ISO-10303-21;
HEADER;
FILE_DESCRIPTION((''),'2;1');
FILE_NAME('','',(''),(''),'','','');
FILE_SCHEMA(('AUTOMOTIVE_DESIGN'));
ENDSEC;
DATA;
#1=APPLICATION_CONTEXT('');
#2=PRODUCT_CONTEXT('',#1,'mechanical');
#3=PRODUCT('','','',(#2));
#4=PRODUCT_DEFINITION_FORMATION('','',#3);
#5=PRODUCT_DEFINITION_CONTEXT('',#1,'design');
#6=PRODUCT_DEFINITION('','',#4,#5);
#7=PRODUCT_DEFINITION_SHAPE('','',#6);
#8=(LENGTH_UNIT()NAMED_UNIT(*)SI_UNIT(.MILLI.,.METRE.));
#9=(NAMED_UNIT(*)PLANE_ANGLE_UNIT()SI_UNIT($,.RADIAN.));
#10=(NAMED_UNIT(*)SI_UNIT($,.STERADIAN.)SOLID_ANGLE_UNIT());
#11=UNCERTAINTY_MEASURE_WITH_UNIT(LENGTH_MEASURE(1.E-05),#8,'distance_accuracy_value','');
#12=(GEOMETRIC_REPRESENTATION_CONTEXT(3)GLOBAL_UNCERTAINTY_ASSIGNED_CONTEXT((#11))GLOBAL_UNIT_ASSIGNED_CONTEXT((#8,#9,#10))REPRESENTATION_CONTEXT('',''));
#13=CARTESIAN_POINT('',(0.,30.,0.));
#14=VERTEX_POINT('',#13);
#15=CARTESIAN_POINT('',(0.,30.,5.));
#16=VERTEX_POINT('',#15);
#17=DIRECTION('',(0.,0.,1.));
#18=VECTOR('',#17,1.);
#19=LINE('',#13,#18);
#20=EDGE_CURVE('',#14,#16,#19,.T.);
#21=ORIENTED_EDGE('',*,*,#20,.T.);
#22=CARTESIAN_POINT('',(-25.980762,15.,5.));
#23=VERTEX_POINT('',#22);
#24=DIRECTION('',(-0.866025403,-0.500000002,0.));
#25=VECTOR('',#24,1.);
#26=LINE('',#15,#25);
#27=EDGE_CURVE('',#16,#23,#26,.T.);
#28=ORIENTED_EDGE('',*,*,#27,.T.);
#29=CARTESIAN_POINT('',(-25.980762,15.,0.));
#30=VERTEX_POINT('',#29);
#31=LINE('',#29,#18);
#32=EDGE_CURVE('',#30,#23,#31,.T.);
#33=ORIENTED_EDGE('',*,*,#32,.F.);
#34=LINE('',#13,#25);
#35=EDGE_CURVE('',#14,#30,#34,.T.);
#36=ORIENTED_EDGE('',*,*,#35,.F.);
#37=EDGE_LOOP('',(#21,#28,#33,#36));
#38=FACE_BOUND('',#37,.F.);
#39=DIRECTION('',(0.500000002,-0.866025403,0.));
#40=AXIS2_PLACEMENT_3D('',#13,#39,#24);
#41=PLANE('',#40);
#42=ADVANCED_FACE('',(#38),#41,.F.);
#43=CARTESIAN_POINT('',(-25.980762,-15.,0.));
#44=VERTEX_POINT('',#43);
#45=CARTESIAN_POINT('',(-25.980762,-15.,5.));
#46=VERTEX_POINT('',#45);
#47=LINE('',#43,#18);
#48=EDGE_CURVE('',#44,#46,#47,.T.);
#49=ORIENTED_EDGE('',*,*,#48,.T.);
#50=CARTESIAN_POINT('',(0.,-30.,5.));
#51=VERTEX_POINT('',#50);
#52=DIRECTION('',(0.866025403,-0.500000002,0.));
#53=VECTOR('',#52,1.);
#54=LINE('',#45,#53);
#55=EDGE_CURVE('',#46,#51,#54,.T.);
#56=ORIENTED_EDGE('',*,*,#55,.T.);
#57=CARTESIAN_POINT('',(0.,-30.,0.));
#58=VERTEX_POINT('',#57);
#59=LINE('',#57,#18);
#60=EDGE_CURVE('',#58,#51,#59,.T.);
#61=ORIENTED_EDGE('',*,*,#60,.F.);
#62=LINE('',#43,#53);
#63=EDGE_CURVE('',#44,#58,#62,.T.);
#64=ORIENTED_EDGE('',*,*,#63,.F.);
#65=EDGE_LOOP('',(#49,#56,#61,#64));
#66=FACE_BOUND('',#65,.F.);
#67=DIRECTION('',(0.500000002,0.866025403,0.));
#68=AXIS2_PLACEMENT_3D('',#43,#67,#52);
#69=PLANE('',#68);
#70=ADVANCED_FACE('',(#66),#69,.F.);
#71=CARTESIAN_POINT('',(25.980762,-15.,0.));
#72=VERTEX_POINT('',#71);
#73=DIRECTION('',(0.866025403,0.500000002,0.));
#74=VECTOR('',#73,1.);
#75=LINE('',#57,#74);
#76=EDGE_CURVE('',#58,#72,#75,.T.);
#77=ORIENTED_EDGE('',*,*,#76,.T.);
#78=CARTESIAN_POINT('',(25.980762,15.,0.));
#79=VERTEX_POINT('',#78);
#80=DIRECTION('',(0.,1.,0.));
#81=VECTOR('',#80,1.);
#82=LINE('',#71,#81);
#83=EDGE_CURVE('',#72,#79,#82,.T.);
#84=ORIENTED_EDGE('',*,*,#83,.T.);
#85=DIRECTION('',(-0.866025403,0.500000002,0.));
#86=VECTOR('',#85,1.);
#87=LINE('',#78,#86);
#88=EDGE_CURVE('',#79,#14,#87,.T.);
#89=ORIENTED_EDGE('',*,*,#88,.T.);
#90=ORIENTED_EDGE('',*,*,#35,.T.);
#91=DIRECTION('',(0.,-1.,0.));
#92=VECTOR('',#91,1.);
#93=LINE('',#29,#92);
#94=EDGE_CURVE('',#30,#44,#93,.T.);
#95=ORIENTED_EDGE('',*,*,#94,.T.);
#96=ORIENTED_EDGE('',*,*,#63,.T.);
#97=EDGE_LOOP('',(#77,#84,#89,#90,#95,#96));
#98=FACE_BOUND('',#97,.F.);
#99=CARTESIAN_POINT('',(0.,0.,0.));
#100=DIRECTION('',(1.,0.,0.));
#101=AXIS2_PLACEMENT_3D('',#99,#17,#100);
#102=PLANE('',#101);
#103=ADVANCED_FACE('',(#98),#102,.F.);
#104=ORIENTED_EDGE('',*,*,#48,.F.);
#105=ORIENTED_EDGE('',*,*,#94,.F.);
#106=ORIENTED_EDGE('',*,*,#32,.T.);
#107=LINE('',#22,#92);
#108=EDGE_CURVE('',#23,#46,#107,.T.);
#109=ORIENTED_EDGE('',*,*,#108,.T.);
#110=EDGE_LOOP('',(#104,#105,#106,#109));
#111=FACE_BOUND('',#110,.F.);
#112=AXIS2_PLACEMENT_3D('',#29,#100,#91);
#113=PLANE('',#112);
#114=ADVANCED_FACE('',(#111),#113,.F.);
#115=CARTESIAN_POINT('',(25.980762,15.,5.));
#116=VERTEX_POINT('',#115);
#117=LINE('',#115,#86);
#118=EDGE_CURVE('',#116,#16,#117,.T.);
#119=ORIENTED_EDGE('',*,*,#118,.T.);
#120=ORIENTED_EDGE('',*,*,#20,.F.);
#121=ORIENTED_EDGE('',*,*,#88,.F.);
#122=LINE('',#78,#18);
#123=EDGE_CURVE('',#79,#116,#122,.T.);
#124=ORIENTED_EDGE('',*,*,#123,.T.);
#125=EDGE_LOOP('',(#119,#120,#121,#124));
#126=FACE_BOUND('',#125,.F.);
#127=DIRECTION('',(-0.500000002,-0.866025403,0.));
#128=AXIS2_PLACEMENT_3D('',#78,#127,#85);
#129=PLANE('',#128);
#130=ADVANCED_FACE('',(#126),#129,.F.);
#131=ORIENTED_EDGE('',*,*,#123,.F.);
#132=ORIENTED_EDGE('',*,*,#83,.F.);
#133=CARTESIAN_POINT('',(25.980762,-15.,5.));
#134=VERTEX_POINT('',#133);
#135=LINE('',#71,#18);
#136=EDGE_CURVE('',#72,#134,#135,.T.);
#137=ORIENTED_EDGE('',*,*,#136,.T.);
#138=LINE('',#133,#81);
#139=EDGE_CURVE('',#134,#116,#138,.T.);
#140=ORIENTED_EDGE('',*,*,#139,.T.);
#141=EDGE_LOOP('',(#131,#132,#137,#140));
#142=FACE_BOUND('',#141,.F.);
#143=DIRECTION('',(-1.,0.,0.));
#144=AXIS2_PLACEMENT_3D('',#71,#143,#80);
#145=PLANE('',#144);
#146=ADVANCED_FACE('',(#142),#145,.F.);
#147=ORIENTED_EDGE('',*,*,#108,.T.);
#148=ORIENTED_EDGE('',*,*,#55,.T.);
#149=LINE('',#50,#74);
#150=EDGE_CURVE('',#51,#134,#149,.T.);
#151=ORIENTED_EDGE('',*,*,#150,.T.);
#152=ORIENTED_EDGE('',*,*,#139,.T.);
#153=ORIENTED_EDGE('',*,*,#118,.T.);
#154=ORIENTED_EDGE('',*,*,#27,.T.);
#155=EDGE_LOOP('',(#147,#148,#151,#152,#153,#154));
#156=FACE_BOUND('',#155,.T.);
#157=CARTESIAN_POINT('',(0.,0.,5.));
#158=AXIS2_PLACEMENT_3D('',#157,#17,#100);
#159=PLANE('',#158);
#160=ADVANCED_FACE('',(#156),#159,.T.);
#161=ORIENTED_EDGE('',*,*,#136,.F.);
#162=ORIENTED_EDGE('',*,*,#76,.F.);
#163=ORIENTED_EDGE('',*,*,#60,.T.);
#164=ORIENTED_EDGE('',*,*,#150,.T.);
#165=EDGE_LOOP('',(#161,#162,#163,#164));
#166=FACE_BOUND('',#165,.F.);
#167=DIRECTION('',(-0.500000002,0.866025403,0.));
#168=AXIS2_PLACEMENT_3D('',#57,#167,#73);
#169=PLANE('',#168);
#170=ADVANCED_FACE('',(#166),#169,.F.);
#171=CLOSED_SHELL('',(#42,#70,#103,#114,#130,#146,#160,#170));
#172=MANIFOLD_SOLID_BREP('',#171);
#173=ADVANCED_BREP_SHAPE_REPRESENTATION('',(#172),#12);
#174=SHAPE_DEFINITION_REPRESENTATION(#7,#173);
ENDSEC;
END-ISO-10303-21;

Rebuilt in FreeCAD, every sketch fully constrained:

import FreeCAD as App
import Part
import Sketcher

V = App.Vector
Q = App.Units.Quantity


def add_polygon(sketch, points):
    """Adds a closed chain of lines whose ends are joined by coincident constraints."""
    first, n = sketch.GeometryCount, len(points)
    for a, b in zip(points, points[1:] + points[:1]):
        sketch.addGeometry(Part.LineSegment(App.Vector(*a, 0), App.Vector(*b, 0)), False)
    for i in range(n):
        sketch.addConstraint(Sketcher.Constraint("Coincident", first + i, 2, first + (i + 1) % n, 1))

doc = App.newDocument("Part")
body = doc.addObject("PartDesign::Body", "Body")

# Sketch on XY plane
sketch1 = body.newObject("Sketcher::SketchObject", "Sketch")
sketch1.AttachmentSupport = (doc.getObject("XY_Plane"), [""])
sketch1.MapMode = "FlatFace"
add_polygon(sketch1, [(26, 15), (0, 30), (-26, 15), (-26, -15), (0, -30), (26, -15)])  # lines 0-5
sketch1.addConstraint(Sketcher.Constraint("Vertical", 2))
sketch1.addConstraint(Sketcher.Constraint("Vertical", 5))
sketch1.addConstraint(Sketcher.Constraint("Symmetric", 0, 2, 3, 2, -1, 1))
sketch1.addConstraint(Sketcher.Constraint("Symmetric", 1, 2, 4, 2, -1, 1))
sketch1.addConstraint(Sketcher.Constraint("PointOnObject", 0, 2, -2))
sketch1.addConstraint(Sketcher.Constraint("Parallel", 0, 3))
sketch1.addConstraint(Sketcher.Constraint("Horizontal", 2, 2, 4, 2))
sketch1.addConstraint(Sketcher.Constraint("DistanceY", 2, 2, 2, 1, Q("30 mm")))
sketch1.addConstraint(Sketcher.Constraint("Angle", 0, Q("150 deg")))
sketch1.addConstraint(Sketcher.Constraint("Distance", 0, Q("30 mm")))
pad1 = body.newObject("PartDesign::Pad", "Pad")
pad1.Profile = sketch1
pad1.Length = 5

doc.recompute()
